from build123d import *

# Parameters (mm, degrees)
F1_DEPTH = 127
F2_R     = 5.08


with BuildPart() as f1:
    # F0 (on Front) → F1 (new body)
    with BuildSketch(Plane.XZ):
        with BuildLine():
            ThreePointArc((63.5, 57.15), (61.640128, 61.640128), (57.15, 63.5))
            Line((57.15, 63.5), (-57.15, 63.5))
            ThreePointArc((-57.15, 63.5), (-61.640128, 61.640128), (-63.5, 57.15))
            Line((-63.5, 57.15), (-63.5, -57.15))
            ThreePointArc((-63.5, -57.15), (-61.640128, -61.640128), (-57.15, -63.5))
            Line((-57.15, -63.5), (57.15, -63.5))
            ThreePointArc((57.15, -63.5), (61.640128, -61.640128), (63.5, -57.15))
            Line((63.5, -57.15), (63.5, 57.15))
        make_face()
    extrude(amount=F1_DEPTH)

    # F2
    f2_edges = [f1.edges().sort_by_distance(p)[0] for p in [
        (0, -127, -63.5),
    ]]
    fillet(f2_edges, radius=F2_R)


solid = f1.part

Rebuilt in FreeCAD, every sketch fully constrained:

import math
import FreeCAD as App
import Part
import Sketcher
from FreeCAD import Vector
Q = App.Units.Quantity


def edges_at(feature, points):
    """Names of the edges that pass closest to the given points."""
    edges = feature.Shape.Edges
    near = lambda p: min(range(len(edges)), key=lambda i: edges[i].distToShape(Part.Vertex(*p))[0])
    return sorted({f"Edge{near(p) + 1}" for p in points})

doc = App.newDocument("Part")
body = doc.addObject("PartDesign::Body", "Body")

# Sketch on XZ plane
sketch1 = doc.addObject("Sketcher::SketchObject", "Sketch")
body.addObject(sketch1)
sketch1.AttachmentSupport = (doc.XZ_Plane, [""])
sketch1.MapMode = "FlatFace"
sketch1.addGeometry([
    Part.ArcOfCircle(Part.Circle(Vector(57.15, 57.15, 0), Vector(0, 0, 1), 6.35), math.radians(0.000002), math.radians(89.999998)),  # 0
    Part.LineSegment(Vector(57.15, 63.5, 0), Vector(-57.15, 63.5, 0)),  # 1
    Part.ArcOfCircle(Part.Circle(Vector(-57.15, 57.15, 0), Vector(0, 0, 1), 6.35), math.radians(90.000002), math.radians(179.999998)),  # 2
    Part.LineSegment(Vector(-63.5, 57.15, 0), Vector(-63.5, -57.15, 0)),  # 3
    Part.ArcOfCircle(Part.Circle(Vector(-57.15, -57.15, 0), Vector(0, 0, 1), 6.35), math.radians(-179.999998), math.radians(-90.000002)),  # 4
    Part.LineSegment(Vector(-57.15, -63.5, 0), Vector(57.15, -63.5, 0)),  # 5
    Part.ArcOfCircle(Part.Circle(Vector(57.15, -57.15, 0), Vector(0, 0, 1), 6.35), math.radians(-89.999998), math.radians(-0.000002)),  # 6
    Part.LineSegment(Vector(63.5, -57.15, 0), Vector(63.5, 57.15, 0)),  # 7
], False)
sketch1.addConstraint([
    Sketcher.Constraint("Tangent", 0, 2, 1, 1),
    Sketcher.Constraint("Tangent", 1, 2, 2, 1),
    Sketcher.Constraint("Tangent", 2, 2, 3, 1),
    Sketcher.Constraint("Tangent", 3, 2, 4, 1),
    Sketcher.Constraint("Tangent", 4, 2, 5, 1),
    Sketcher.Constraint("Tangent", 5, 2, 6, 1),
    Sketcher.Constraint("Tangent", 6, 2, 7, 1),
    Sketcher.Constraint("Tangent", 7, 2, 0, 1),
    Sketcher.Constraint("Horizontal", 1),
    Sketcher.Constraint("Vertical", 3),
    Sketcher.Constraint("Horizontal", 5),
    Sketcher.Constraint("Vertical", 7),
    Sketcher.Constraint("Equal", 0, 2),
    Sketcher.Constraint("Equal", 2, 4),
    Sketcher.Constraint("Equal", 4, 6),
    Sketcher.Constraint("Symmetric", 0, 3, 4, 3, -1, 1),
    Sketcher.Constraint("Equal", 5, 3),
    Sketcher.Constraint("Radius", 0, Q("0.25 in")),
    Sketcher.Constraint("DistanceX", 1, 2, 1, 1, Q("4.5 in")),
])
pad1 = doc.addObject("PartDesign::Pad", "Pad")
body.addObject(pad1)
pad1.Profile = sketch1
pad1.Length = Q("5 in")
doc.recompute()

fillet = doc.addObject("PartDesign::Fillet", "Fillet")
body.addObject(fillet)
fillet.Base = (pad1, edges_at(pad1, [(0, -127, -63.5)]))
fillet.Radius = Q("0.2 in")

doc.recompute()
